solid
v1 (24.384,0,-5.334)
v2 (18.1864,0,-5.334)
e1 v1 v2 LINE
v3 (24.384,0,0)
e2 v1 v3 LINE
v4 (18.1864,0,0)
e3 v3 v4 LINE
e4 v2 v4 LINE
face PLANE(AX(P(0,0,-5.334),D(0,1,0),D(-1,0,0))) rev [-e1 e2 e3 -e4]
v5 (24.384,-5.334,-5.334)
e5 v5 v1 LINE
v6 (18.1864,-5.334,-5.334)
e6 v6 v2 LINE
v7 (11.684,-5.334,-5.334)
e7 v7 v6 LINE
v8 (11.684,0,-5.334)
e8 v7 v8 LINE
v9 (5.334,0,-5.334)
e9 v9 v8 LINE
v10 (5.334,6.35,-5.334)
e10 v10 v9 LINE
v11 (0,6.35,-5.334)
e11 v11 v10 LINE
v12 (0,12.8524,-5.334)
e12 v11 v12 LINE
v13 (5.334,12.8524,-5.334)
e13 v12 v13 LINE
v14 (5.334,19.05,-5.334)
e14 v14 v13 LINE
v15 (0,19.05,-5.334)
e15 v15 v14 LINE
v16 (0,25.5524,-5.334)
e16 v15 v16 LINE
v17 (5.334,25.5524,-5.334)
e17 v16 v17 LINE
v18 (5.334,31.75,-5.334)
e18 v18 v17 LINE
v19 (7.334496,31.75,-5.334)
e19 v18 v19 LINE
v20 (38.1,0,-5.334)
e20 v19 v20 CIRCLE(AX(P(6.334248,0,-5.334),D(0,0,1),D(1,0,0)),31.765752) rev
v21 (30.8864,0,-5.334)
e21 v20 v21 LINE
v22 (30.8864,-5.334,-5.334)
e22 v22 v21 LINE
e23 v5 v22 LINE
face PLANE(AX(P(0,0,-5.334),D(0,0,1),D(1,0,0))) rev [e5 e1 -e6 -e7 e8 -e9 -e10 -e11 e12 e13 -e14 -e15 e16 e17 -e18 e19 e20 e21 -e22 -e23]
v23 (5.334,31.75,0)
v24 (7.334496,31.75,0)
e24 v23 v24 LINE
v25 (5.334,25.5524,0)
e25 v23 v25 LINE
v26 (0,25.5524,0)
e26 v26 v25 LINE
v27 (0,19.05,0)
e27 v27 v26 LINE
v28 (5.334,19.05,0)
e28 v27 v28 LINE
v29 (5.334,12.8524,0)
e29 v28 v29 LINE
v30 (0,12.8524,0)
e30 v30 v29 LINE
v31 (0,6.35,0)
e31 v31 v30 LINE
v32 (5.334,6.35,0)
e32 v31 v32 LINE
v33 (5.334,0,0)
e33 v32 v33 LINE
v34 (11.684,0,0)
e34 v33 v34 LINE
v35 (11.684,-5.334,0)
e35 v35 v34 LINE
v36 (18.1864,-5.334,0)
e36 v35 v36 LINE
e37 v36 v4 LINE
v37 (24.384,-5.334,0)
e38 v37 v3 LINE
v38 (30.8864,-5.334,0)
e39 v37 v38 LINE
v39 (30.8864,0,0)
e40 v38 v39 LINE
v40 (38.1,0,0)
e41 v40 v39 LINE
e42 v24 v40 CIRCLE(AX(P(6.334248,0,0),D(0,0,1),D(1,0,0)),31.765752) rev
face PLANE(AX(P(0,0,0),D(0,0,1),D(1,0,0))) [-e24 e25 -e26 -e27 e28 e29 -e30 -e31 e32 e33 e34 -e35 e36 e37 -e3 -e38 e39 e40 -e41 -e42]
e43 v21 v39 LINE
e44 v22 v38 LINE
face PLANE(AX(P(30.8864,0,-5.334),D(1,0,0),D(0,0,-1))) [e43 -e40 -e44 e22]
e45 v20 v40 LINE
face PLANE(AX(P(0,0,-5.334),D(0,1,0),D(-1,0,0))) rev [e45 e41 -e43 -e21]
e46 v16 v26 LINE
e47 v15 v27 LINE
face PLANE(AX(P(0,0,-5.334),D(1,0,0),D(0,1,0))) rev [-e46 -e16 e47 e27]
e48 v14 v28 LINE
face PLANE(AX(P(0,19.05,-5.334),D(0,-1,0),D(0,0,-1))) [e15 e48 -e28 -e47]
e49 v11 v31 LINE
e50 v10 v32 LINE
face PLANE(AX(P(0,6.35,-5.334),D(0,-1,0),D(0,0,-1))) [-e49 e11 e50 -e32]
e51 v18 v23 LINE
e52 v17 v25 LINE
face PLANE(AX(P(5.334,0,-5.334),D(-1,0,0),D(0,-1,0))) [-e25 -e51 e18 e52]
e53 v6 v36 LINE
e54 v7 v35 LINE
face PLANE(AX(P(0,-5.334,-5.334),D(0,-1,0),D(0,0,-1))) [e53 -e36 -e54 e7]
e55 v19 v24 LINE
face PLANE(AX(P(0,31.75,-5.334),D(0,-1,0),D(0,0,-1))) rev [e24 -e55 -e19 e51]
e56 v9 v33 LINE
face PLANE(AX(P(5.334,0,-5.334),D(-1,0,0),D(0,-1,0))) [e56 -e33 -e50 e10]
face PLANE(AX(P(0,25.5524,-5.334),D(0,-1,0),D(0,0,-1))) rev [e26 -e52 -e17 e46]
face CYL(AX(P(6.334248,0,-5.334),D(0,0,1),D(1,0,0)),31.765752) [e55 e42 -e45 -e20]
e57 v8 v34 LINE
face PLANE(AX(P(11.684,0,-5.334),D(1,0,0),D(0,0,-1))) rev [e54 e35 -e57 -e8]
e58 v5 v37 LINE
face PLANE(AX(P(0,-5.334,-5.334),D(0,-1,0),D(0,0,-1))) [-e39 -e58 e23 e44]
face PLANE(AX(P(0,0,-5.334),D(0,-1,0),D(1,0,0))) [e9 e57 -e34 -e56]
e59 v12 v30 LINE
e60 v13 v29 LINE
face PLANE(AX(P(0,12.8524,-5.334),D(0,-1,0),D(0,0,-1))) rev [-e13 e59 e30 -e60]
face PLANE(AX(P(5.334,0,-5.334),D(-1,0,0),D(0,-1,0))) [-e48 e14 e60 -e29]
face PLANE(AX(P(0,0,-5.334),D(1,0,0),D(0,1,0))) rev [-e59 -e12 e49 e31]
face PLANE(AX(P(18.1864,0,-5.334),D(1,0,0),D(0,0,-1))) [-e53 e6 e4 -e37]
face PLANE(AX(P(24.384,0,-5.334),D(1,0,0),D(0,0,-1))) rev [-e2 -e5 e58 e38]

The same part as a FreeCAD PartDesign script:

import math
import FreeCAD as App
import Part
import Sketcher
from FreeCAD import Vector
Q = App.Units.Quantity

doc = App.newDocument("Part")
params = doc.addObject("Spreadsheet::Sheet", "Params")
for row, (alias, value) in enumerate([
    ("sketch1_width", "1.5 in"),
    ("sketch1_height", "1.46 in"),
    ("sketch1_height2", "0.21 in"),
    ("pad1_length", "0.21 in"),
    ("sketch2_width", "0.25 in"),
    ("sketch2_width2", "0.21 in"),
    ("sketch2_width3", "0.244 in"),
], start=1):
    params.set(f"A{row}", alias)
    params.set(f"B{row}", "=" + value)
    params.setAlias(f"B{row}", alias)

body = doc.addObject("PartDesign::Body", "Body")

# Sketch on XY plane
sketch1 = doc.addObject("Sketcher::SketchObject", "Sketch")
body.addObject(sketch1)
sketch1.AttachmentSupport = (doc.XY_Plane, [""])
sketch1.MapMode = "FlatFace"
sketch1.addGeometry(Part.LineSegment(Vector(0, 31.75, 0), Vector(0, -5.334, 0)), False)
sketch1.addGeometry(Part.LineSegment(Vector(0, -5.334, 0), Vector(38.1, -5.334, 0)), False)
sketch1.addGeometry(Part.LineSegment(Vector(38.1, -5.334, 0), Vector(38.1, 0, 0)), False)
sketch1.addGeometry(Part.ArcOfCircle(Part.Circle(Vector(6.334248, 0, 0), Vector(0, 0, 1), 31.765752), math.radians(0), math.radians(88.195558)), False)
sketch1.addGeometry(Part.LineSegment(Vector(7.334496, 31.75, 0), Vector(0, 31.75, 0)), False)
sketch1.addConstraint(Sketcher.Constraint("Coincident", 0, 2, 1, 1))
sketch1.addConstraint(Sketcher.Constraint("Coincident", 1, 2, 2, 1))
sketch1.addConstraint(Sketcher.Constraint("Tangent", 2, 2, 3, 1))
sketch1.addConstraint(Sketcher.Constraint("Coincident", 3, 2, 4, 1))
sketch1.addConstraint(Sketcher.Constraint("Coincident", 4, 2, 0, 1))
sketch1.addConstraint(Sketcher.Constraint("Vertical", 0))
sketch1.addConstraint(Sketcher.Constraint("Horizontal", 1))
sketch1.addConstraint(Sketcher.Constraint("Vertical", 2))
sketch1.addConstraint(Sketcher.Constraint("Horizontal", 4))
sketch1.addConstraint(Sketcher.Constraint("PointOnObject", 3, 3, -1))
sketch1.addConstraint(Sketcher.Constraint("PointOnObject", 0, 2, -2))
sketch1.addConstraint(Sketcher.Constraint("DistanceX", 1, 1, 1, 2, Q("1.5 in")))
sketch1.addConstraint(Sketcher.Constraint("DistanceY", 0, 2, 0, 1, Q("1.46 in")))
sketch1.addConstraint(Sketcher.Constraint("DistanceY", 2, 1, 2, 2, Q("0.21 in")))
sketch1.addConstraint(Sketcher.Constraint("Radius", 3, Q("31.765752 mm")))
sketch1.setExpression("Constraints[11]", "Params.sketch1_width")
sketch1.setExpression("Constraints[12]", "Params.sketch1_height")
sketch1.setExpression("Constraints[13]", "Params.sketch1_height2")
pad1 = doc.addObject("PartDesign::Pad", "Pad")
body.addObject(pad1)
pad1.Profile = sketch1
pad1.setExpression("Length", "Params.pad1_length")
pad1.Reversed = True

# Sketch on XY plane
sketch2 = doc.addObject("Sketcher::SketchObject", "Sketch001")
body.addObject(sketch2)
sketch2.AttachmentSupport = (doc.XY_Plane, [""])
sketch2.MapMode = "FlatFace"
sketch2.addGeometry(Part.LineSegment(Vector(11.684, -5.334, 0), Vector(11.684, 0, 0)), False)
sketch2.addGeometry(Part.LineSegment(Vector(11.684, 0, 0), Vector(5.334, 0, 0)), False)
sketch2.addGeometry(Part.LineSegment(Vector(5.334, 0, 0), Vector(5.334, 6.35, 0)), False)
sketch2.addGeometry(Part.LineSegment(Vector(5.334, 6.35, 0), Vector(0, 6.35, 0)), False)
sketch2.addGeometry(Part.LineSegment(Vector(0, 6.35, 0), Vector(0, -5.334, 0)), False)
sketch2.addGeometry(Part.LineSegment(Vector(0, -5.334, 0), Vector(11.684, -5.334, 0)), False)
sketch2.addGeometry(Part.LineSegment(Vector(0, 31.75, 0), Vector(0, 25.5524, 0)), False)
sketch2.addGeometry(Part.LineSegment(Vector(0, 25.5524, 0), Vector(5.334, 25.5524, 0)), False)
sketch2.addGeometry(Part.LineSegment(Vector(5.334, 25.5524, 0), Vector(5.334, 31.75, 0)), False)
sketch2.addGeometry(Part.LineSegment(Vector(5.334, 31.75, 0), Vector(0, 31.75, 0)), False)
sketch2.addGeometry(Part.LineSegment(Vector(0, 19.05, 0), Vector(0, 12.8524, 0)), False)
sketch2.addGeometry(Part.LineSegment(Vector(0, 12.8524, 0), Vector(5.334, 12.8524, 0)), False)
sketch2.addGeometry(Part.LineSegment(Vector(5.334, 12.8524, 0), Vector(5.334, 19.05, 0)), False)
sketch2.addGeometry(Part.LineSegment(Vector(5.334, 19.05, 0), Vector(0, 19.05, 0)), False)
sketch2.addGeometry(Part.LineSegment(Vector(18.1864, 0, 0), Vector(18.1864, -5.334, 0)), False)
sketch2.addGeometry(Part.LineSegment(Vector(18.1864, -5.334, 0), Vector(24.384, -5.334, 0)), False)
sketch2.addGeometry(Part.LineSegment(Vector(24.384, -5.334, 0), Vector(24.384, 0, 0)), False)
sketch2.addGeometry(Part.LineSegment(Vector(24.384, 0, 0), Vector(18.1864, 0, 0)), False)
sketch2.addGeometry(Part.LineSegment(Vector(30.8864, 0, 0), Vector(30.8864, -5.334, 0)), False)
sketch2.addGeometry(Part.LineSegment(Vector(30.8864, -5.334, 0), Vector(38.1, -5.334, 0)), False)
sketch2.addGeometry(Part.LineSegment(Vector(38.1, -5.334, 0), Vector(38.1, 0, 0)), False)
sketch2.addGeometry(Part.LineSegment(Vector(38.1, 0, 0), Vector(30.8864, 0, 0)), False)
sketch2.addConstraint(Sketcher.Constraint("Coincident", 0, 2, 1, 1))
sketch2.addConstraint(Sketcher.Constraint("Coincident", 1, 2, 2, 1))
sketch2.addConstraint(Sketcher.Constraint("Coincident", 2, 2, 3, 1))
sketch2.addConstraint(Sketcher.Constraint("Coincident", 3, 2, 4, 1))
sketch2.addConstraint(Sketcher.Constraint("Coincident", 4, 2, 5, 1))
sketch2.addConstraint(Sketcher.Constraint("Coincident", 5, 2, 0, 1))
sketch2.addConstraint(Sketcher.Constraint("Coincident", 6, 2, 7, 1))
sketch2.addConstraint(Sketcher.Constraint("Coincident", 7, 2, 8, 1))
sketch2.addConstraint(Sketcher.Constraint("Coincident", 8, 2, 9, 1))
sketch2.addConstraint(Sketcher.Constraint("Coincident", 9, 2, 6, 1))
sketch2.addConstraint(Sketcher.Constraint("Coincident", 10, 2, 11, 1))
sketch2.addConstraint(Sketcher.Constraint("Coincident", 11, 2, 12, 1))
sketch2.addConstraint(Sketcher.Constraint("Coincident", 12, 2, 13, 1))
sketch2.addConstraint(Sketcher.Constraint("Coincident", 13, 2, 10, 1))
sketch2.addConstraint(Sketcher.Constraint("Coincident", 14, 2, 15, 1))
sketch2.addConstraint(Sketcher.Constraint("Coincident", 15, 2, 16, 1))
sketch2.addConstraint(Sketcher.Constraint("Coincident", 16, 2, 17, 1))
sketch2.addConstraint(Sketcher.Constraint("Coincident", 17, 2, 14, 1))
sketch2.addConstraint(Sketcher.Constraint("Coincident", 18, 2, 19, 1))
sketch2.addConstraint(Sketcher.Constraint("Coincident", 19, 2, 20, 1))
sketch2.addConstraint(Sketcher.Constraint("Coincident", 20, 2, 21, 1))
sketch2.addConstraint(Sketcher.Constraint("Coincident", 21, 2, 18, 1))
sketch2.addConstraint(Sketcher.Constraint("Vertical", 0))
sketch2.addConstraint(Sketcher.Constraint("Horizontal", 1))
sketch2.addConstraint(Sketcher.Constraint("Vertical", 2))
sketch2.addConstraint(Sketcher.Constraint("Horizontal", 3))
sketch2.addConstraint(Sketcher.Constraint("Vertical", 4))
sketch2.addConstraint(Sketcher.Constraint("Horizontal", 5))
sketch2.addConstraint(Sketcher.Constraint("Vertical", 6))
sketch2.addConstraint(Sketcher.Constraint("Horizontal", 7))
sketch2.addConstraint(Sketcher.Constraint("Vertical", 8))
sketch2.addConstraint(Sketcher.Constraint("Horizontal", 9))
sketch2.addConstraint(Sketcher.Constraint("Vertical", 10))
sketch2.addConstraint(Sketcher.Constraint("Horizontal", 11))
sketch2.addConstraint(Sketcher.Constraint("Vertical", 12))
sketch2.addConstraint(Sketcher.Constraint("Horizontal", 13))
sketch2.addConstraint(Sketcher.Constraint("Vertical", 14))
sketch2.addConstraint(Sketcher.Constraint("Horizontal", 15))
sketch2.addConstraint(Sketcher.Constraint("Vertical", 16))
sketch2.addConstraint(Sketcher.Constraint("Horizontal", 17))
sketch2.addConstraint(Sketcher.Constraint("Vertical", 18))
sketch2.addConstraint(Sketcher.Constraint("Horizontal", 19))
sketch2.addConstraint(Sketcher.Constraint("Vertical", 20))
sketch2.addConstraint(Sketcher.Constraint("Horizontal", 21))
sketch2.addConstraint(Sketcher.Constraint("PointOnObject", 0, 2, -1))
sketch2.addConstraint(Sketcher.Constraint("PointOnObject", 3, 2, -2))
sketch2.addConstraint(Sketcher.Constraint("PointOnObject", 6, 2, -2))
sketch2.addConstraint(Sketcher.Constraint("PointOnObject", 10, 2, -2))
sketch2.addConstraint(Sketcher.Constraint("PointOnObject", 16, 2, -1))
sketch2.addConstraint(Sketcher.Constraint("PointOnObject", 20, 2, -1))
sketch2.addConstraint(Sketcher.Constraint("Horizontal", 5, 2, 14, 2))
sketch2.addConstraint(Sketcher.Constraint("Horizontal", 15, 2, 18, 2))
sketch2.addConstraint(Sketcher.Constraint("Vertical", 2, 2, 7, 2))
sketch2.addConstraint(Sketcher.Constraint("Vertical", 8, 2, 11, 2))
sketch2.addConstraint(Sketcher.Constraint("Equal", 13, 0))
sketch2.addConstraint(Sketcher.Constraint("Equal", 1, 2))
sketch2.addConstraint(Sketcher.Constraint("Equal", 17, 6))
sketch2.addConstraint(Sketcher.Constraint("Equal", 8, 10))
sketch2.addConstraint(Sketcher.Constraint("DistanceY", 2, 2, 8, 2, Q("1 in")))
sketch2.addConstraint(Sketcher.Constraint("DistanceX", 1, 2, 1, 1, Q("0.25 in")))
sketch2.addConstraint(Sketcher.Constraint("DistanceX", 3, 2, 3, 1, Q("0.21 in")))
sketch2.addConstraint(Sketcher.Constraint("DistanceX", -1, 1, 19, 2, Q("1.5 in")))
sketch2.addConstraint(Sketcher.Constraint("DistanceY", 10, 2, 6, 2, Q("0.5 in")))
sketch2.addConstraint(Sketcher.Constraint("DistanceX", 5, 2, 15, 2, Q("0.5 in")))
sketch2.addConstraint(Sketcher.Constraint("DistanceX", 14, 2, 18, 2, Q("0.5 in")))
sketch2.addConstraint(Sketcher.Constraint("DistanceX", 15, 1, 15, 2, Q("0.244 in")))
sketch2.setExpression("Constraints[59]", "Params.sketch2_width")
sketch2.setExpression("Constraints[60]", "Params.sketch2_width2")
sketch2.setExpression("Constraints[65]", "Params.sketch2_width3")
pocket1 = doc.addObject("PartDesign::Pocket", "Pocket")
body.addObject(pocket1)
pocket1.Profile = sketch2
pocket1.Type = "ThroughAll"

doc.recompute()
